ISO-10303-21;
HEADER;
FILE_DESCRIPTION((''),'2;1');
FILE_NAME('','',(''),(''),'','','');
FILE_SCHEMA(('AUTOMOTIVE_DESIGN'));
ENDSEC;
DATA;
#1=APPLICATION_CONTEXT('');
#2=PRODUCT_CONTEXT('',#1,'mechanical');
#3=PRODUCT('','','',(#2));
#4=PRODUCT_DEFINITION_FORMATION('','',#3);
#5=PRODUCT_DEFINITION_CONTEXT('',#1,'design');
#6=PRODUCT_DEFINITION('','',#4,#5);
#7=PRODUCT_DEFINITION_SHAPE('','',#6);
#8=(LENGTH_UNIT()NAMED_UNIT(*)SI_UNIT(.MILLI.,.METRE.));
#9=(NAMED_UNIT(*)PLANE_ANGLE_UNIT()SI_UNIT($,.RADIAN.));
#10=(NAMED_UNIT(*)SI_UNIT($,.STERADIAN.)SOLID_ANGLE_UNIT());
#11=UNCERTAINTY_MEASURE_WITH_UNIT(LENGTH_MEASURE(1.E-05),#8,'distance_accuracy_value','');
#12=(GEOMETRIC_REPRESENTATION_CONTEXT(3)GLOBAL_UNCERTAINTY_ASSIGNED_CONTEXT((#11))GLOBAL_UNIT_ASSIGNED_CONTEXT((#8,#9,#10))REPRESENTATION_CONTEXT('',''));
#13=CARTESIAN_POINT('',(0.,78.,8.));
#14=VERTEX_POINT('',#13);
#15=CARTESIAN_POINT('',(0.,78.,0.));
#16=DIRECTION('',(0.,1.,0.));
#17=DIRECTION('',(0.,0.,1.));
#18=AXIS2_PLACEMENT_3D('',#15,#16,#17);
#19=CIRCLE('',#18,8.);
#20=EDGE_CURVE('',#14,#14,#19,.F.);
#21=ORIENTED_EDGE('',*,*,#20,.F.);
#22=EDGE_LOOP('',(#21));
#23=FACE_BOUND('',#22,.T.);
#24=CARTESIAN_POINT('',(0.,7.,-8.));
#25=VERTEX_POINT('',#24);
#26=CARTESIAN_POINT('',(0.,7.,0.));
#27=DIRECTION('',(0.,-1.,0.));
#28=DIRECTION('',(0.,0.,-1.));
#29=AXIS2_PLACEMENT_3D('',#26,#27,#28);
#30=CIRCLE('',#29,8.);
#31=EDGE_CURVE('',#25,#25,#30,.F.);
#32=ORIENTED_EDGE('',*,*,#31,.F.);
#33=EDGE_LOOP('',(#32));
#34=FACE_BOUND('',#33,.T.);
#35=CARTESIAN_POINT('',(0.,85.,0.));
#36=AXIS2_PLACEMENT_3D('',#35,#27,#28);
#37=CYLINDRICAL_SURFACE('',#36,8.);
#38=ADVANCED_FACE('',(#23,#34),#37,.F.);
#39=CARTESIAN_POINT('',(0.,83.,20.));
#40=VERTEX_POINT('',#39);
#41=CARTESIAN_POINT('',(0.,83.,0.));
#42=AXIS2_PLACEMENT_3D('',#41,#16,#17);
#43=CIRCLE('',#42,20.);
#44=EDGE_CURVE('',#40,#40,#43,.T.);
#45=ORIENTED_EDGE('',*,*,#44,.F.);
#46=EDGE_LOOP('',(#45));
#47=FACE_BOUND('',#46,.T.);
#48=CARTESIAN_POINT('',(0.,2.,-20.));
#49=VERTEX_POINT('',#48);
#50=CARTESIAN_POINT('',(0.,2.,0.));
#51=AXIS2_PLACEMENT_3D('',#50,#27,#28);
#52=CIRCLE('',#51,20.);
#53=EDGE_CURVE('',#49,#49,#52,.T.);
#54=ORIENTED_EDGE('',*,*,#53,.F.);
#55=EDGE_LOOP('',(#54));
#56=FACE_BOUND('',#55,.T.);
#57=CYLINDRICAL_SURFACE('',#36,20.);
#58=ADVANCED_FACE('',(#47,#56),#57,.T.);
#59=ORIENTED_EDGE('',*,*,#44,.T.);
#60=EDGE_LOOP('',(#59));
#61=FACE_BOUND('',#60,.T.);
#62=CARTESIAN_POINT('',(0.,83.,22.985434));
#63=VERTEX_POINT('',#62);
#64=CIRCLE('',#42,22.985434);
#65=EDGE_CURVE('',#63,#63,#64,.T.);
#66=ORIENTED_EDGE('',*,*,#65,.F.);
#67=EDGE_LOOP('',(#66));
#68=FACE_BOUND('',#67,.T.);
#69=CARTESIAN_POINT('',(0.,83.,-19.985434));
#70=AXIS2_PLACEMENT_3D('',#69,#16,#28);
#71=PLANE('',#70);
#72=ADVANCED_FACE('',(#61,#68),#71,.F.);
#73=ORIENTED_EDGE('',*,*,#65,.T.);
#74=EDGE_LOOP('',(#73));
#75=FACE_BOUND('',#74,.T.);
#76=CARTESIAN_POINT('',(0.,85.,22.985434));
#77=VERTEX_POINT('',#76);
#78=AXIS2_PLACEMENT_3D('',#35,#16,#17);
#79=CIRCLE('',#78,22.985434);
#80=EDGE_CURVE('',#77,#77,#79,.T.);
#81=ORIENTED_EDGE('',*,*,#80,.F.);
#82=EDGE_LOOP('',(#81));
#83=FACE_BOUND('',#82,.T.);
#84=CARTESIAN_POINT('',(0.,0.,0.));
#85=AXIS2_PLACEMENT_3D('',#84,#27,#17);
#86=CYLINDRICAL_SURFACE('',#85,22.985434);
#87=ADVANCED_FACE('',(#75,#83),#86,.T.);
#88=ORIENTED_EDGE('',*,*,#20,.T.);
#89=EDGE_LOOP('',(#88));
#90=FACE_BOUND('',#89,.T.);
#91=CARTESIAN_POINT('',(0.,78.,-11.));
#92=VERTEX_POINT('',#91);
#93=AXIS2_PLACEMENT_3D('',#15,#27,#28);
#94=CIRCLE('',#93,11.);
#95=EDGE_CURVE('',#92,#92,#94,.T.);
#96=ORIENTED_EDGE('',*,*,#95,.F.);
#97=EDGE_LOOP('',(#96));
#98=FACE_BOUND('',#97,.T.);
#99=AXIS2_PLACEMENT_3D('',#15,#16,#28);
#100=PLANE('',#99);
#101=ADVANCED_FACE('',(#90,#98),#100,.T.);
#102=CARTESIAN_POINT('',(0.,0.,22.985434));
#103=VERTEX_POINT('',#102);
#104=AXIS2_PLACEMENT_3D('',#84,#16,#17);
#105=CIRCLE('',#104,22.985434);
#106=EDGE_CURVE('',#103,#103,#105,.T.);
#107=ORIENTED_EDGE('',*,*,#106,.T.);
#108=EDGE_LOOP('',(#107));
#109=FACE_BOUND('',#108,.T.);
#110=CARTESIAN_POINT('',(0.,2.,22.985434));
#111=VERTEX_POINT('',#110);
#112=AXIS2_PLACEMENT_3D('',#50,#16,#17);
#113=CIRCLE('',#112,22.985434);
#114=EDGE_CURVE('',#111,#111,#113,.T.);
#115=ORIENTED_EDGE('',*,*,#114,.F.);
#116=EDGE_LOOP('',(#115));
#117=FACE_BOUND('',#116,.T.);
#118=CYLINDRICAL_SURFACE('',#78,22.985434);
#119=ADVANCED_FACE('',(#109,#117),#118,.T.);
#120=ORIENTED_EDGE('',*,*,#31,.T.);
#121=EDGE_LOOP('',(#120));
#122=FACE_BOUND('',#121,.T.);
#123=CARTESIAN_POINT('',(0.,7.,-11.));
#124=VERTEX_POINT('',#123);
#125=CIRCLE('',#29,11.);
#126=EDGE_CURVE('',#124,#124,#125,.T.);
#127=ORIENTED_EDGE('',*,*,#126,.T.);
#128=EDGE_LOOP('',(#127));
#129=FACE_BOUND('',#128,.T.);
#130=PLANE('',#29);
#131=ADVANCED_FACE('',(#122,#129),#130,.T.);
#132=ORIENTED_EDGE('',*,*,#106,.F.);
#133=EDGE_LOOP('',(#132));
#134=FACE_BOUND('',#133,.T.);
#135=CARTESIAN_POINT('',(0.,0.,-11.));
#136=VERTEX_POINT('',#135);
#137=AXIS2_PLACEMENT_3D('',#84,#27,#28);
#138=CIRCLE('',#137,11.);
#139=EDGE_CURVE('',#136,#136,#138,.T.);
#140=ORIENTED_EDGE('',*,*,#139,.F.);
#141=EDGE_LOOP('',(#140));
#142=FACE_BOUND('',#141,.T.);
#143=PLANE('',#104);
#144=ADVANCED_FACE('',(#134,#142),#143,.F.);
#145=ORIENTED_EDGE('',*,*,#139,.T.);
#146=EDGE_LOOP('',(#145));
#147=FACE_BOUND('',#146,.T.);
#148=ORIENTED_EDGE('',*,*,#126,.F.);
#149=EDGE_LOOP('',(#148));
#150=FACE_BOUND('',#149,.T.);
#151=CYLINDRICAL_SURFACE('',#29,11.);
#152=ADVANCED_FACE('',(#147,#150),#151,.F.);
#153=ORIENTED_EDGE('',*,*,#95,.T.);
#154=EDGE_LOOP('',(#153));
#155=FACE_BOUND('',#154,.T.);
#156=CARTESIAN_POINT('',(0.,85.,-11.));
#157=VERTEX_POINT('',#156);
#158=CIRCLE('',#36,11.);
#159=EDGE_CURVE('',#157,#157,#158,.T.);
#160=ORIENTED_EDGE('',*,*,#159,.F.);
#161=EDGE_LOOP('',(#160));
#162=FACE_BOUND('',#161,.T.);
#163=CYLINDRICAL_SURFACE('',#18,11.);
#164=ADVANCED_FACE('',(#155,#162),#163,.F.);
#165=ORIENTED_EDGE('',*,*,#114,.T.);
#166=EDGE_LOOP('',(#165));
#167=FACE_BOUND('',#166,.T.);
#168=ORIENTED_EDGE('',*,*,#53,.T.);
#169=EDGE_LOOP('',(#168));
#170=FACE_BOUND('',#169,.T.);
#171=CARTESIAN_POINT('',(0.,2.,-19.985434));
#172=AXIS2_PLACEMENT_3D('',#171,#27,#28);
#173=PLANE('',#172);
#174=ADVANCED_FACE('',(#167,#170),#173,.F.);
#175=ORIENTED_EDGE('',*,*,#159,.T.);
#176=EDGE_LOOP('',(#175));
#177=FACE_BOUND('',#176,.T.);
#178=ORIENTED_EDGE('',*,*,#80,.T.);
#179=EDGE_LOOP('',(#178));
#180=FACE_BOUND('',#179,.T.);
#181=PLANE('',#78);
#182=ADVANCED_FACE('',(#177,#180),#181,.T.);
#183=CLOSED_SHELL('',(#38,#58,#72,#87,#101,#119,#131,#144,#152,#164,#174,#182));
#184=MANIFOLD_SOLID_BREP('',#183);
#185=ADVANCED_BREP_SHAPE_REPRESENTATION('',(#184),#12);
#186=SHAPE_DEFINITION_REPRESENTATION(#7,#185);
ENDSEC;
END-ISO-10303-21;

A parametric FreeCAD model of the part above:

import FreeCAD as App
import Part
import Sketcher
Q = App.Units.Quantity

doc = App.newDocument("Part")
body = doc.addObject("PartDesign::Body", "Body")

# Sketch on XZ plane
sketch1 = body.newObject("Sketcher::SketchObject", "Sketch")
sketch1.AttachmentSupport = (doc.getObject("XZ_Plane"), [""])
sketch1.MapMode = "FlatFace"
sketch1.addGeometry(Part.Circle(App.Vector(0, 0, 0), App.Vector(0, 0, 1), 20), False)
sketch1.addConstraint([
    Sketcher.Constraint("Coincident", 0, 3, -1, 1),
    Sketcher.Constraint("Diameter", 0, Q("40 mm")),
])
pad1 = body.newObject("PartDesign::Pad", "Pad")
pad1.Profile = sketch1
pad1.Length = 85
pad1.Reversed = True

# Sketch on XZ plane
sketch2 = body.newObject("Sketcher::SketchObject", "Sketch001")
sketch2.AttachmentSupport = (doc.getObject("XZ_Plane"), [""])
sketch2.MapMode = "FlatFace"
sketch2.addGeometry(Part.Circle(App.Vector(0, 0, 0), App.Vector(0, 0, 1), 8), False)
sketch2.addConstraint([
    Sketcher.Constraint("Coincident", 0, 3, -1, 1),
    Sketcher.Constraint("Diameter", 0, Q("16 mm")),
])
pocket1 = body.newObject("PartDesign::Pocket", "Pocket")
pocket1.Profile = sketch2
pocket1.Length = 85

# Sketch on XZ plane
sketch3 = body.newObject("Sketcher::SketchObject", "Sketch002")
sketch3.AttachmentSupport = (doc.getObject("XZ_Plane"), [""])
sketch3.MapMode = "FlatFace"
sketch3.addGeometry(Part.Circle(App.Vector(0, 0, 0), App.Vector(0, 0, 1), 11), False)
sketch3.addConstraint([
    Sketcher.Constraint("Coincident", 0, 3, -1, 1),
    Sketcher.Constraint("Diameter", 0, Q("22 mm")),
])
pocket2 = body.newObject("PartDesign::Pocket", "Pocket001")
pocket2.Profile = sketch3
pocket2.Length = 7
doc.recompute()

datumplane = body.newObject("PartDesign::Plane", "DatumPlane")
datumplane.AttachmentSupport = (doc.getObject("XZ_Plane"), [""])
datumplane.MapMode = "FlatFace"
datumplane.AttachmentOffset = App.Placement(App.Vector(0, 0, -42.5), App.Rotation())
mirrored = body.newObject("PartDesign::Mirrored", "Mirrored")
mirrored.Originals = [pocket2]
mirrored.MirrorPlane = (datumplane, [""])
body.Tip = mirrored

# Sketch on YZ plane
sketch4 = body.newObject("Sketcher::SketchObject", "Sketch003")
sketch4.AttachmentSupport = (doc.getObject("YZ_Plane"), [""])
sketch4.MapMode = "FlatFace"
sketch4.addGeometry([
    Part.LineSegment(App.Vector(2, -19.985434, 0), App.Vector(0, -19.985434, 0)),
    Part.LineSegment(App.Vector(0, -19.985434, 0), App.Vector(0, -22.985434, 0)),
    Part.LineSegment(App.Vector(0, -22.985434, 0), App.Vector(2, -22.985434, 0)),
    Part.LineSegment(App.Vector(2, -22.985434, 0), App.Vector(2, -19.985434, 0)),
], False)
sketch4.addConstraint([
    Sketcher.Constraint("Coincident", 0, 2, 1, 1),
    Sketcher.Constraint("Coincident", 1, 2, 2, 1),
    Sketcher.Constraint("Coincident", 2, 2, 3, 1),
    Sketcher.Constraint("Coincident", 3, 2, 0, 1),
    Sketcher.Constraint("Horizontal", 0),
    Sketcher.Constraint("Vertical", 1),
    Sketcher.Constraint("Horizontal", 2),
    Sketcher.Constraint("Vertical", 3),
    Sketcher.Constraint("PointOnObject", 0, 2, -2),
    Sketcher.Constraint("DistanceX", 0, 2, 0, 1, Q("2 mm")),
    Sketcher.Constraint("DistanceY", 1, 2, 1, 1, Q("3 mm")),
    Sketcher.Constraint("DistanceY", 0, 2, -1, 1, Q("19.985434 mm")),
])
revolution = body.newObject("PartDesign::Revolution", "Revolution")
revolution.Profile = sketch4
revolution.ReferenceAxis = (sketch4, ["H_Axis"])
revolution.Angle = 360
doc.recompute()

datumplane2 = body.newObject("PartDesign::Plane", "DatumPlane001")
datumplane2.AttachmentSupport = (doc.getObject("XZ_Plane"), [""])
datumplane2.MapMode = "FlatFace"
datumplane2.AttachmentOffset = App.Placement(App.Vector(0, 0, -42.5), App.Rotation())
mirrored2 = body.newObject("PartDesign::Mirrored", "Mirrored001")
mirrored2.Originals = [revolution]
mirrored2.MirrorPlane = (datumplane2, [""])
body.Tip = mirrored2

doc.recompute()
